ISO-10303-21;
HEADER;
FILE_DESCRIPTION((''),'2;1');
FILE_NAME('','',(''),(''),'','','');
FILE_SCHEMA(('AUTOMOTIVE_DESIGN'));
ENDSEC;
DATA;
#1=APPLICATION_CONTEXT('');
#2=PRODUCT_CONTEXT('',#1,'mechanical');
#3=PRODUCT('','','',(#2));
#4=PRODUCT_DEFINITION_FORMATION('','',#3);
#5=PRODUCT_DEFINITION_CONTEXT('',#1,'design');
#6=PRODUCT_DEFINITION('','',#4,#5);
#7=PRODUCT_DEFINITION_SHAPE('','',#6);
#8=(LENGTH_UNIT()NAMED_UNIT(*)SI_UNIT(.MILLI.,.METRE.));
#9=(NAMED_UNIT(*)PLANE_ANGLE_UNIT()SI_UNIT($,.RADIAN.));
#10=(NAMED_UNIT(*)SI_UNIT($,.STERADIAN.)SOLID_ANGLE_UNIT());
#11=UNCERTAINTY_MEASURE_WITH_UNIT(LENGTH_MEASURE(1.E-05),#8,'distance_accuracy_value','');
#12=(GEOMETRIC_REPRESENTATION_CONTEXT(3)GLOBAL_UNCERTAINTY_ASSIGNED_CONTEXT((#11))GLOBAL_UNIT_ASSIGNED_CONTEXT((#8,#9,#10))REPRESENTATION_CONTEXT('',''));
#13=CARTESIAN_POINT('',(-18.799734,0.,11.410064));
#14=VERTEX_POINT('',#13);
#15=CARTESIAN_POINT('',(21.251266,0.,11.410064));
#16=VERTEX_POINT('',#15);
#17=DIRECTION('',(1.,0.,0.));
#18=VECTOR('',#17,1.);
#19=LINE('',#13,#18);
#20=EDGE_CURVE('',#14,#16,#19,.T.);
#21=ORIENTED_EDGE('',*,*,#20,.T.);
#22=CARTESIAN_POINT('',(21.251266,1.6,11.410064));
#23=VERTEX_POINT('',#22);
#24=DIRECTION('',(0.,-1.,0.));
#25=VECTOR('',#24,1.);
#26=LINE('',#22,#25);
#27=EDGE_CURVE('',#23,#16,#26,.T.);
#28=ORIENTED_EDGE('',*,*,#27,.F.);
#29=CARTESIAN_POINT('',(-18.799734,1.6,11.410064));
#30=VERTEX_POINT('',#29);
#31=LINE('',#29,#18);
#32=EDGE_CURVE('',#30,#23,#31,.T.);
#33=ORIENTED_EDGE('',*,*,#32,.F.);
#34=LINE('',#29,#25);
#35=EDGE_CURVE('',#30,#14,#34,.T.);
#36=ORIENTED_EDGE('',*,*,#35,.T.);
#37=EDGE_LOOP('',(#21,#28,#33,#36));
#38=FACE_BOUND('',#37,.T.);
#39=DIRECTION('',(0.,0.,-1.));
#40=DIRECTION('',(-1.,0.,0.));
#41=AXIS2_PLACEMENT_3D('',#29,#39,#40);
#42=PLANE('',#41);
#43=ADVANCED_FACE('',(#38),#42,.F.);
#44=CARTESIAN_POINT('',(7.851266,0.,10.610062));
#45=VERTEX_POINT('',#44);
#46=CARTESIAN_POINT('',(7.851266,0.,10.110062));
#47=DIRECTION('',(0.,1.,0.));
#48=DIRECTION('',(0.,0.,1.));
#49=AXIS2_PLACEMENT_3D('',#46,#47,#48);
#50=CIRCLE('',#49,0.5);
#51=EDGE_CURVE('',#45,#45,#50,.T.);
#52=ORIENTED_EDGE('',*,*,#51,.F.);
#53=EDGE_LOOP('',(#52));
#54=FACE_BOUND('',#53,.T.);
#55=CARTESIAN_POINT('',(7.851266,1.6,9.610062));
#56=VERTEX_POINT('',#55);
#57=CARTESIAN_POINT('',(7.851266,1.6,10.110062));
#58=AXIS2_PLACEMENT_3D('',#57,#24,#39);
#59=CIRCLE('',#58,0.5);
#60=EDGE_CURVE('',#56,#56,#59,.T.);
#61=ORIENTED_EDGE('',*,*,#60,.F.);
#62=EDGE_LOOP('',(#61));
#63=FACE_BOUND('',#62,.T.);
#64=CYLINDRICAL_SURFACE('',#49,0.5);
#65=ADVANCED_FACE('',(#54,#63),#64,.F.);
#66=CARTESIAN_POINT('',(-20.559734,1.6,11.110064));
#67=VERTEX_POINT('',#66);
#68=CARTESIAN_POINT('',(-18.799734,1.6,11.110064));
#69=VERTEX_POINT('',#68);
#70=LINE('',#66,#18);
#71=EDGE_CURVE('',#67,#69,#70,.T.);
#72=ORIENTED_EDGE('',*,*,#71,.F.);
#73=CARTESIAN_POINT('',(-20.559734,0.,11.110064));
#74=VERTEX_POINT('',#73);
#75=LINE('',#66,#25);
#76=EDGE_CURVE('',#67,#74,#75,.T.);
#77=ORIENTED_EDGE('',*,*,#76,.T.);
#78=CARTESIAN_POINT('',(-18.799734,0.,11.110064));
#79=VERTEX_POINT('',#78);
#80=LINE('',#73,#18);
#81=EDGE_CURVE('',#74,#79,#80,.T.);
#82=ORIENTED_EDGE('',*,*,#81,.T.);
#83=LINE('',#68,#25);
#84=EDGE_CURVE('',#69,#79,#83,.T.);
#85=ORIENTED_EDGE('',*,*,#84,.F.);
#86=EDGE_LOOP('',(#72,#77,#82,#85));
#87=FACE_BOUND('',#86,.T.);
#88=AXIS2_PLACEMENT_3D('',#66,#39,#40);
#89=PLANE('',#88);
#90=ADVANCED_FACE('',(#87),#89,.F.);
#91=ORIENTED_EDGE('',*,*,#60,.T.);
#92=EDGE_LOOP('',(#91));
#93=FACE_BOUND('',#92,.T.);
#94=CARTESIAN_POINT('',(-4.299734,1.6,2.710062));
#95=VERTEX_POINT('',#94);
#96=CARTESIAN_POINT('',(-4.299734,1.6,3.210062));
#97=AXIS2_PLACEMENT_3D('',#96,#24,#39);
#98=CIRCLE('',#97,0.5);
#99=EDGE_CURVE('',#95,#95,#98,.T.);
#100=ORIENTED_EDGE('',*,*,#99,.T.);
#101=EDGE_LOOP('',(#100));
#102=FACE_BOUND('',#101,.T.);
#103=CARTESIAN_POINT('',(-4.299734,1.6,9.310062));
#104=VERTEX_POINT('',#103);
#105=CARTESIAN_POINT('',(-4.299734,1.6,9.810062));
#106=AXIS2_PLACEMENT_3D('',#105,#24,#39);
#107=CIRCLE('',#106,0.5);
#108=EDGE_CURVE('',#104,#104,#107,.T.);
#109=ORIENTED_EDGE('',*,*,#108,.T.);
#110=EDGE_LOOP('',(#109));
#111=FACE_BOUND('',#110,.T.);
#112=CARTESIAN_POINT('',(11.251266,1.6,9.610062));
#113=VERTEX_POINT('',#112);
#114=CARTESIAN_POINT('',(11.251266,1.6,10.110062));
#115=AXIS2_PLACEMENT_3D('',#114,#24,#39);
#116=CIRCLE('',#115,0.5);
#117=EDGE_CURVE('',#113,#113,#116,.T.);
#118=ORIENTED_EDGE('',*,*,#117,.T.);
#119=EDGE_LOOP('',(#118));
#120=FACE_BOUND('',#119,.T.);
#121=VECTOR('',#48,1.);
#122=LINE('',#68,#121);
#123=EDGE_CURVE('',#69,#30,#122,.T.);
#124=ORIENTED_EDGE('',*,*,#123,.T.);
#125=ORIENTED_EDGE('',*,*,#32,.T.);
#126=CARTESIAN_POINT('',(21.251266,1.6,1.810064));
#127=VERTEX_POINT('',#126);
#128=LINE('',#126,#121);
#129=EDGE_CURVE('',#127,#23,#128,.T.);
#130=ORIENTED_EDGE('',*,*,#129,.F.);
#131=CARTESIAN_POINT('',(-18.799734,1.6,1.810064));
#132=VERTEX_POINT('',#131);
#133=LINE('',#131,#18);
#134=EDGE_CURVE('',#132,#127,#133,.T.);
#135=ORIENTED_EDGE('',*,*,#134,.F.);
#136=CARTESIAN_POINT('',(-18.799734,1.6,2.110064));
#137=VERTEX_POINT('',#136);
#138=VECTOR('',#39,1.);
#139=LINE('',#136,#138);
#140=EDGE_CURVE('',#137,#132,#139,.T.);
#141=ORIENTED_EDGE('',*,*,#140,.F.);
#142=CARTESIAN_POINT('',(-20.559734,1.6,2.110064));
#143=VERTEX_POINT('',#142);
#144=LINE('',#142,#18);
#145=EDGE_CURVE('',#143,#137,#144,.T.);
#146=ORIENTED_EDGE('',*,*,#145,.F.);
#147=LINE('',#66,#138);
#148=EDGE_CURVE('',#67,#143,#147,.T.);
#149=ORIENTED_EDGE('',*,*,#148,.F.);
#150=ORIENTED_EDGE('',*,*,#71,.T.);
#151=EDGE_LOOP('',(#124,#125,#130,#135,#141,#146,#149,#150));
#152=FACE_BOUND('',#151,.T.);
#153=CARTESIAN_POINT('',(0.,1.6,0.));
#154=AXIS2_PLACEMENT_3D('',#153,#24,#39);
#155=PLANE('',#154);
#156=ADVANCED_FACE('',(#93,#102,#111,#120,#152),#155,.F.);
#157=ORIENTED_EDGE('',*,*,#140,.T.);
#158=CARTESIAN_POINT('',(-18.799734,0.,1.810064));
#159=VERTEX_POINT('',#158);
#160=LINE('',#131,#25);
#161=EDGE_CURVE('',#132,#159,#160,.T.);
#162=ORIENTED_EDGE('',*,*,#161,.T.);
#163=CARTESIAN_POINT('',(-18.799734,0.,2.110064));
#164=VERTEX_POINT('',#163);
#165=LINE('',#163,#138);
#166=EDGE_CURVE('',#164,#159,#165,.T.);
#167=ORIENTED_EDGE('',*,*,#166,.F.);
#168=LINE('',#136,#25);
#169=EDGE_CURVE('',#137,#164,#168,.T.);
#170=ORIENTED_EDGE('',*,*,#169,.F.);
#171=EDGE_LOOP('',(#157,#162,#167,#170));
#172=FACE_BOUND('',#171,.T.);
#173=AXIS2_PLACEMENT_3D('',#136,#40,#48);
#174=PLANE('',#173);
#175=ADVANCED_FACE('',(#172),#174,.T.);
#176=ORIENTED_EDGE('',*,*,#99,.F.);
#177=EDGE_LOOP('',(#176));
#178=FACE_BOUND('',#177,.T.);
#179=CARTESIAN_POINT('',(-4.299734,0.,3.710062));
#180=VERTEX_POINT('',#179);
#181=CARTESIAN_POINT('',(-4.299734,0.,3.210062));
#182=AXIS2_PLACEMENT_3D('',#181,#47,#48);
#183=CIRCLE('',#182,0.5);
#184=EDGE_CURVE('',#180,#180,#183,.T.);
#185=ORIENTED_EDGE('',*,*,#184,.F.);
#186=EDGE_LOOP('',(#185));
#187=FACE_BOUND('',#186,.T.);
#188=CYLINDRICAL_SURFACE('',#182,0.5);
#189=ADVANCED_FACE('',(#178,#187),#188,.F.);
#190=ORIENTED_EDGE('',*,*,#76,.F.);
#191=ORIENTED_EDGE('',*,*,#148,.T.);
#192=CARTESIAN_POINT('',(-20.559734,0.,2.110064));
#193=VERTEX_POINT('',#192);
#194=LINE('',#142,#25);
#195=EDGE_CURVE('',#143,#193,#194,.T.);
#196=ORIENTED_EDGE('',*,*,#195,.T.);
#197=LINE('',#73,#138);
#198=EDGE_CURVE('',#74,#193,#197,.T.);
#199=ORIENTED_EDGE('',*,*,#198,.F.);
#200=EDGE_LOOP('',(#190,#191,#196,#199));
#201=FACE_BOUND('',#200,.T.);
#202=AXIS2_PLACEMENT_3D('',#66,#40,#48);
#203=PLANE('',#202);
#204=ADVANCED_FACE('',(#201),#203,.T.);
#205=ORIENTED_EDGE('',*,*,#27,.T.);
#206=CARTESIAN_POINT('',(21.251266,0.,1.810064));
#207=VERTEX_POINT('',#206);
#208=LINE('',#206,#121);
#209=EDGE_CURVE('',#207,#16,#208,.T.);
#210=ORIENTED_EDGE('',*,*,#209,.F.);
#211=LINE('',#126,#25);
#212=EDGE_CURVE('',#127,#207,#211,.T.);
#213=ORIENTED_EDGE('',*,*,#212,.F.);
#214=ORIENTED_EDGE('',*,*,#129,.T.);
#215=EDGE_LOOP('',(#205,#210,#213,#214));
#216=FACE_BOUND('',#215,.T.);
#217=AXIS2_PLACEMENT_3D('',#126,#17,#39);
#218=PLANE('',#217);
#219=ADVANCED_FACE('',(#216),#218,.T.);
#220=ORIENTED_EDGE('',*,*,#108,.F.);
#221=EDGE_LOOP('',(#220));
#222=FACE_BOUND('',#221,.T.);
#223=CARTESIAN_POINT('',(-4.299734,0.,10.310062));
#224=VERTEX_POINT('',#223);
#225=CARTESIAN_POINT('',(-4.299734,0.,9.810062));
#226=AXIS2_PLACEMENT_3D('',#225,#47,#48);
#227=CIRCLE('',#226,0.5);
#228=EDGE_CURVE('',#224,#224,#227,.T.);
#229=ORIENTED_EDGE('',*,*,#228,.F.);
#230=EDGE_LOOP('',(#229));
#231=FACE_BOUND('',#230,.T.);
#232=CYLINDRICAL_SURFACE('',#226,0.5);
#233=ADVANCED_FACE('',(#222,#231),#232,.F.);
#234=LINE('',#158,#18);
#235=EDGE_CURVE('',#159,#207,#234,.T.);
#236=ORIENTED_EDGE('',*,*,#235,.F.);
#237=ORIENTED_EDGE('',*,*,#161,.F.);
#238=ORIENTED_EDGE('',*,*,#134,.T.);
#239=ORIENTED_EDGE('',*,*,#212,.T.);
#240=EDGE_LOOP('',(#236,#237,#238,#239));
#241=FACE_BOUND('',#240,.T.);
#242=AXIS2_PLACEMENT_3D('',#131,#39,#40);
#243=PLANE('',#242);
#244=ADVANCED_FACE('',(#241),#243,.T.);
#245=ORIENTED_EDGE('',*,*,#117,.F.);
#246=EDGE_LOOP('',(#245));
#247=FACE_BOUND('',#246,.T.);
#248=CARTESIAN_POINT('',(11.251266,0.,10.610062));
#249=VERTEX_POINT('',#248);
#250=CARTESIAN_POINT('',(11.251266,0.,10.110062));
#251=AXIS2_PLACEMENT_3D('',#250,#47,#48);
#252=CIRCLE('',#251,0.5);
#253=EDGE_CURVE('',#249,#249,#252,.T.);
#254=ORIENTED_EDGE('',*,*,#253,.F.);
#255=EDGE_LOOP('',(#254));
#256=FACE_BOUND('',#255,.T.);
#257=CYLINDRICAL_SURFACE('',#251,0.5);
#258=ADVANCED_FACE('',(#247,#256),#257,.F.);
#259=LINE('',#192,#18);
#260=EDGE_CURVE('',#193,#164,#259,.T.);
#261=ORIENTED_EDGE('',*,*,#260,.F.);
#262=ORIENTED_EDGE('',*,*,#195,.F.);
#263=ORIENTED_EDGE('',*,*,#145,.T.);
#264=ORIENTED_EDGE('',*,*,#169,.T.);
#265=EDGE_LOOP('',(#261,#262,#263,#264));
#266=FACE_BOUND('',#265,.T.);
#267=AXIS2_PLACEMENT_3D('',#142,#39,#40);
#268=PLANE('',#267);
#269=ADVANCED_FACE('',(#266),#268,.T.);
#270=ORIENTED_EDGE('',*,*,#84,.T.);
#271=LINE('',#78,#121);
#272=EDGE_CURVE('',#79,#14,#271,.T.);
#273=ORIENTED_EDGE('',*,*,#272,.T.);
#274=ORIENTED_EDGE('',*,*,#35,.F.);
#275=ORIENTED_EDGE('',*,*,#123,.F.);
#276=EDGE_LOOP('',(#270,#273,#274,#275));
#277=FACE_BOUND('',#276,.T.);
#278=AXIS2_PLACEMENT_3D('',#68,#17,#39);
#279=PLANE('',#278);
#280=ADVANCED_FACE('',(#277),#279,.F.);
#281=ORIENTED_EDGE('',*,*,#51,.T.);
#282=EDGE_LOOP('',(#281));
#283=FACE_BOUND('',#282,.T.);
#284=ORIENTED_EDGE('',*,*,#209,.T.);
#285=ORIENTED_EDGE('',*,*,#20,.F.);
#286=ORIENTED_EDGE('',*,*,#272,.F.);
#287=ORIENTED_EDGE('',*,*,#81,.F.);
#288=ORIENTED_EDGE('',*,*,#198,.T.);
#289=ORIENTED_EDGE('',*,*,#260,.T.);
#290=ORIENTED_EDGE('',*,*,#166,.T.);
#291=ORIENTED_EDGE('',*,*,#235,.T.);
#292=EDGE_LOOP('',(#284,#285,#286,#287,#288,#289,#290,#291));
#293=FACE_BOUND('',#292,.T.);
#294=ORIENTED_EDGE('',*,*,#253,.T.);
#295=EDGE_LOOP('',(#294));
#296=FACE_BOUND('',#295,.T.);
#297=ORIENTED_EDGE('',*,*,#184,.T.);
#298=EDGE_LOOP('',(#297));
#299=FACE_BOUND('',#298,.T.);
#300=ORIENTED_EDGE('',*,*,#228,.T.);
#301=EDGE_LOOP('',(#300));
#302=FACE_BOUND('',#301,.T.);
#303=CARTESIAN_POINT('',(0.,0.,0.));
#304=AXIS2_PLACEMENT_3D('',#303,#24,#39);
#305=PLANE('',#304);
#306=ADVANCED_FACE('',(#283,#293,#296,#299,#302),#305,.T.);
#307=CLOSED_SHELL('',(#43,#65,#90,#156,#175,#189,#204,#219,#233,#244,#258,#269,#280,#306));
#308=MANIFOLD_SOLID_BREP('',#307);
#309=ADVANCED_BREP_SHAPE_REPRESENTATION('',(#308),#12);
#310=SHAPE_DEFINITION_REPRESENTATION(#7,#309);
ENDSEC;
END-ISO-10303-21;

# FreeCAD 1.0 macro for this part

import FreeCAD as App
import Part
import Sketcher

V = App.Vector
Q = App.Units.Quantity


def add_polygon(sketch, points):
    """Adds a closed chain of lines whose ends are joined by coincident constraints."""
    first, n = sketch.GeometryCount, len(points)
    for a, b in zip(points, points[1:] + points[:1]):
        sketch.addGeometry(Part.LineSegment(App.Vector(*a, 0), App.Vector(*b, 0)), False)
    for i in range(n):
        sketch.addConstraint(Sketcher.Constraint("Coincident", first + i, 2, first + (i + 1) % n, 1))

doc = App.newDocument("Part")
params = doc.addObject("Spreadsheet::Sheet", "Params")
for row, (alias, value) in enumerate([
    ("sketch1_height", "9 mm"),
    ("sketch1_height2", "9.6 mm"),
    ("sketch1_width", "1.76 mm"),
    ("pad1_length", "1.6 mm"),
    ("sketch2_diameter", "1 mm"),
], start=1):
    params.set(f"A{row}", alias)
    params.set(f"B{row}", "=" + value)
    params.setAlias(f"B{row}", alias)

body = doc.addObject("PartDesign::Body", "Body")

# Sketch on XZ plane
sketch1 = body.newObject("Sketcher::SketchObject", "Sketch")
sketch1.AttachmentSupport = (doc.getObject("XZ_Plane"), [""])
sketch1.MapMode = "FlatFace"
add_polygon(sketch1, [(21.25, 11.41), (21.25, 1.81), (-18.8, 1.81), (-18.8, 2.11), (-20.56, 2.11), (-20.56, 11.11), (-18.8, 11.11), (-18.8, 11.41)])  # lines 0-7
sketch1.addConstraint(Sketcher.Constraint("Vertical", 0))
sketch1.addConstraint(Sketcher.Constraint("Horizontal", 1))
sketch1.addConstraint(Sketcher.Constraint("Vertical", 2))
sketch1.addConstraint(Sketcher.Constraint("Horizontal", 3))
sketch1.addConstraint(Sketcher.Constraint("Vertical", 4))
sketch1.addConstraint(Sketcher.Constraint("Horizontal", 5))
sketch1.addConstraint(Sketcher.Constraint("Vertical", 6))
sketch1.addConstraint(Sketcher.Constraint("Horizontal", 7))
sketch1.addConstraint(Sketcher.Constraint("Vertical", 2, 2, 5, 2))
sketch1.addConstraint(Sketcher.Constraint("Equal", 2, 6))
sketch1.addConstraint(Sketcher.Constraint("DistanceY", 4, 1, 4, 2, Q("9 mm")))
sketch1.addConstraint(Sketcher.Constraint("DistanceY", 0, 2, 0, 1, Q("9.6 mm")))
sketch1.addConstraint(Sketcher.Constraint("DistanceX", 3, 2, 3, 1, Q("1.76 mm")))
sketch1.addConstraint(Sketcher.Constraint("DistanceX", 1, 2, 1, 1, Q("40.051 mm")))
sketch1.addConstraint(Sketcher.Constraint("DistanceX", -1, 1, 0, 2, Q("21.251266 mm")))
sketch1.addConstraint(Sketcher.Constraint("DistanceY", -1, 1, 0, 2, Q("1.810064 mm")))
sketch1.setExpression("Constraints[18]", "Params.sketch1_height")
sketch1.setExpression("Constraints[19]", "Params.sketch1_height2")
sketch1.setExpression("Constraints[20]", "Params.sketch1_width")
pad1 = body.newObject("PartDesign::Pad", "Pad")
pad1.Profile = sketch1
pad1.setExpression("Length", "Params.pad1_length")
pad1.Reversed = True

# Sketch on XZ plane
sketch2 = body.newObject("Sketcher::SketchObject", "Sketch001")
sketch2.AttachmentSupport = (doc.getObject("XZ_Plane"), [""])
sketch2.MapMode = "FlatFace"
sketch2.AttachmentOffset = App.Placement(V(0, 0, -1.6), App.Rotation())
sketch2.addGeometry(Part.Circle(V(-4.3, 3.2, 0), V(0, 0, 1), 0.5), False)
sketch2.addGeometry(Part.Circle(V(-4.3, 9.8, 0), V(0, 0, 1), 0.5), False)
sketch2.addGeometry(Part.Circle(V(7.9, 10.1, 0), V(0, 0, 1), 0.5), False)
sketch2.addGeometry(Part.Circle(V(11.3, 10.1, 0), V(0, 0, 1), 0.5), False)
sketch2.addConstraint(Sketcher.Constraint("Equal", 0, 1))
sketch2.addConstraint(Sketcher.Constraint("Equal", 1, 2))
sketch2.addConstraint(Sketcher.Constraint("Equal", 2, 3))
sketch2.addConstraint(Sketcher.Constraint("Horizontal", 2, 3, 3, 3))
sketch2.addConstraint(Sketcher.Constraint("Vertical", 0, 3, 1, 3))
sketch2.addConstraint(Sketcher.Constraint("Diameter", 0, Q("1 mm")))
sketch2.addConstraint(Sketcher.Constraint("DistanceY", 0, 3, 1, 3, Q("6.6 mm")))
sketch2.addConstraint(Sketcher.Constraint("DistanceY", 1, 3, 2, 3, Q("0.3 mm")))
sketch2.addConstraint(Sketcher.Constraint("DistanceX", 2, 3, 3, 3, Q("3.4 mm")))
sketch2.addConstraint(Sketcher.Constraint("DistanceX", 1, 3, 2, 3, Q("12.151 mm")))
sketch2.addConstraint(Sketcher.Constraint("DistanceX", 0, 3, -1, 1, Q("4.299734 mm")))
sketch2.addConstraint(Sketcher.Constraint("DistanceY", -1, 1, 0, 3, Q("3.210062 mm")))
sketch2.setExpression("Constraints[5]", "Params.sketch2_diameter")
pocket1 = body.newObject("PartDesign::Pocket", "Pocket")
pocket1.Profile = sketch2
pocket1.Type = "ThroughAll"
pocket1.Midplane = True

doc.recompute()
